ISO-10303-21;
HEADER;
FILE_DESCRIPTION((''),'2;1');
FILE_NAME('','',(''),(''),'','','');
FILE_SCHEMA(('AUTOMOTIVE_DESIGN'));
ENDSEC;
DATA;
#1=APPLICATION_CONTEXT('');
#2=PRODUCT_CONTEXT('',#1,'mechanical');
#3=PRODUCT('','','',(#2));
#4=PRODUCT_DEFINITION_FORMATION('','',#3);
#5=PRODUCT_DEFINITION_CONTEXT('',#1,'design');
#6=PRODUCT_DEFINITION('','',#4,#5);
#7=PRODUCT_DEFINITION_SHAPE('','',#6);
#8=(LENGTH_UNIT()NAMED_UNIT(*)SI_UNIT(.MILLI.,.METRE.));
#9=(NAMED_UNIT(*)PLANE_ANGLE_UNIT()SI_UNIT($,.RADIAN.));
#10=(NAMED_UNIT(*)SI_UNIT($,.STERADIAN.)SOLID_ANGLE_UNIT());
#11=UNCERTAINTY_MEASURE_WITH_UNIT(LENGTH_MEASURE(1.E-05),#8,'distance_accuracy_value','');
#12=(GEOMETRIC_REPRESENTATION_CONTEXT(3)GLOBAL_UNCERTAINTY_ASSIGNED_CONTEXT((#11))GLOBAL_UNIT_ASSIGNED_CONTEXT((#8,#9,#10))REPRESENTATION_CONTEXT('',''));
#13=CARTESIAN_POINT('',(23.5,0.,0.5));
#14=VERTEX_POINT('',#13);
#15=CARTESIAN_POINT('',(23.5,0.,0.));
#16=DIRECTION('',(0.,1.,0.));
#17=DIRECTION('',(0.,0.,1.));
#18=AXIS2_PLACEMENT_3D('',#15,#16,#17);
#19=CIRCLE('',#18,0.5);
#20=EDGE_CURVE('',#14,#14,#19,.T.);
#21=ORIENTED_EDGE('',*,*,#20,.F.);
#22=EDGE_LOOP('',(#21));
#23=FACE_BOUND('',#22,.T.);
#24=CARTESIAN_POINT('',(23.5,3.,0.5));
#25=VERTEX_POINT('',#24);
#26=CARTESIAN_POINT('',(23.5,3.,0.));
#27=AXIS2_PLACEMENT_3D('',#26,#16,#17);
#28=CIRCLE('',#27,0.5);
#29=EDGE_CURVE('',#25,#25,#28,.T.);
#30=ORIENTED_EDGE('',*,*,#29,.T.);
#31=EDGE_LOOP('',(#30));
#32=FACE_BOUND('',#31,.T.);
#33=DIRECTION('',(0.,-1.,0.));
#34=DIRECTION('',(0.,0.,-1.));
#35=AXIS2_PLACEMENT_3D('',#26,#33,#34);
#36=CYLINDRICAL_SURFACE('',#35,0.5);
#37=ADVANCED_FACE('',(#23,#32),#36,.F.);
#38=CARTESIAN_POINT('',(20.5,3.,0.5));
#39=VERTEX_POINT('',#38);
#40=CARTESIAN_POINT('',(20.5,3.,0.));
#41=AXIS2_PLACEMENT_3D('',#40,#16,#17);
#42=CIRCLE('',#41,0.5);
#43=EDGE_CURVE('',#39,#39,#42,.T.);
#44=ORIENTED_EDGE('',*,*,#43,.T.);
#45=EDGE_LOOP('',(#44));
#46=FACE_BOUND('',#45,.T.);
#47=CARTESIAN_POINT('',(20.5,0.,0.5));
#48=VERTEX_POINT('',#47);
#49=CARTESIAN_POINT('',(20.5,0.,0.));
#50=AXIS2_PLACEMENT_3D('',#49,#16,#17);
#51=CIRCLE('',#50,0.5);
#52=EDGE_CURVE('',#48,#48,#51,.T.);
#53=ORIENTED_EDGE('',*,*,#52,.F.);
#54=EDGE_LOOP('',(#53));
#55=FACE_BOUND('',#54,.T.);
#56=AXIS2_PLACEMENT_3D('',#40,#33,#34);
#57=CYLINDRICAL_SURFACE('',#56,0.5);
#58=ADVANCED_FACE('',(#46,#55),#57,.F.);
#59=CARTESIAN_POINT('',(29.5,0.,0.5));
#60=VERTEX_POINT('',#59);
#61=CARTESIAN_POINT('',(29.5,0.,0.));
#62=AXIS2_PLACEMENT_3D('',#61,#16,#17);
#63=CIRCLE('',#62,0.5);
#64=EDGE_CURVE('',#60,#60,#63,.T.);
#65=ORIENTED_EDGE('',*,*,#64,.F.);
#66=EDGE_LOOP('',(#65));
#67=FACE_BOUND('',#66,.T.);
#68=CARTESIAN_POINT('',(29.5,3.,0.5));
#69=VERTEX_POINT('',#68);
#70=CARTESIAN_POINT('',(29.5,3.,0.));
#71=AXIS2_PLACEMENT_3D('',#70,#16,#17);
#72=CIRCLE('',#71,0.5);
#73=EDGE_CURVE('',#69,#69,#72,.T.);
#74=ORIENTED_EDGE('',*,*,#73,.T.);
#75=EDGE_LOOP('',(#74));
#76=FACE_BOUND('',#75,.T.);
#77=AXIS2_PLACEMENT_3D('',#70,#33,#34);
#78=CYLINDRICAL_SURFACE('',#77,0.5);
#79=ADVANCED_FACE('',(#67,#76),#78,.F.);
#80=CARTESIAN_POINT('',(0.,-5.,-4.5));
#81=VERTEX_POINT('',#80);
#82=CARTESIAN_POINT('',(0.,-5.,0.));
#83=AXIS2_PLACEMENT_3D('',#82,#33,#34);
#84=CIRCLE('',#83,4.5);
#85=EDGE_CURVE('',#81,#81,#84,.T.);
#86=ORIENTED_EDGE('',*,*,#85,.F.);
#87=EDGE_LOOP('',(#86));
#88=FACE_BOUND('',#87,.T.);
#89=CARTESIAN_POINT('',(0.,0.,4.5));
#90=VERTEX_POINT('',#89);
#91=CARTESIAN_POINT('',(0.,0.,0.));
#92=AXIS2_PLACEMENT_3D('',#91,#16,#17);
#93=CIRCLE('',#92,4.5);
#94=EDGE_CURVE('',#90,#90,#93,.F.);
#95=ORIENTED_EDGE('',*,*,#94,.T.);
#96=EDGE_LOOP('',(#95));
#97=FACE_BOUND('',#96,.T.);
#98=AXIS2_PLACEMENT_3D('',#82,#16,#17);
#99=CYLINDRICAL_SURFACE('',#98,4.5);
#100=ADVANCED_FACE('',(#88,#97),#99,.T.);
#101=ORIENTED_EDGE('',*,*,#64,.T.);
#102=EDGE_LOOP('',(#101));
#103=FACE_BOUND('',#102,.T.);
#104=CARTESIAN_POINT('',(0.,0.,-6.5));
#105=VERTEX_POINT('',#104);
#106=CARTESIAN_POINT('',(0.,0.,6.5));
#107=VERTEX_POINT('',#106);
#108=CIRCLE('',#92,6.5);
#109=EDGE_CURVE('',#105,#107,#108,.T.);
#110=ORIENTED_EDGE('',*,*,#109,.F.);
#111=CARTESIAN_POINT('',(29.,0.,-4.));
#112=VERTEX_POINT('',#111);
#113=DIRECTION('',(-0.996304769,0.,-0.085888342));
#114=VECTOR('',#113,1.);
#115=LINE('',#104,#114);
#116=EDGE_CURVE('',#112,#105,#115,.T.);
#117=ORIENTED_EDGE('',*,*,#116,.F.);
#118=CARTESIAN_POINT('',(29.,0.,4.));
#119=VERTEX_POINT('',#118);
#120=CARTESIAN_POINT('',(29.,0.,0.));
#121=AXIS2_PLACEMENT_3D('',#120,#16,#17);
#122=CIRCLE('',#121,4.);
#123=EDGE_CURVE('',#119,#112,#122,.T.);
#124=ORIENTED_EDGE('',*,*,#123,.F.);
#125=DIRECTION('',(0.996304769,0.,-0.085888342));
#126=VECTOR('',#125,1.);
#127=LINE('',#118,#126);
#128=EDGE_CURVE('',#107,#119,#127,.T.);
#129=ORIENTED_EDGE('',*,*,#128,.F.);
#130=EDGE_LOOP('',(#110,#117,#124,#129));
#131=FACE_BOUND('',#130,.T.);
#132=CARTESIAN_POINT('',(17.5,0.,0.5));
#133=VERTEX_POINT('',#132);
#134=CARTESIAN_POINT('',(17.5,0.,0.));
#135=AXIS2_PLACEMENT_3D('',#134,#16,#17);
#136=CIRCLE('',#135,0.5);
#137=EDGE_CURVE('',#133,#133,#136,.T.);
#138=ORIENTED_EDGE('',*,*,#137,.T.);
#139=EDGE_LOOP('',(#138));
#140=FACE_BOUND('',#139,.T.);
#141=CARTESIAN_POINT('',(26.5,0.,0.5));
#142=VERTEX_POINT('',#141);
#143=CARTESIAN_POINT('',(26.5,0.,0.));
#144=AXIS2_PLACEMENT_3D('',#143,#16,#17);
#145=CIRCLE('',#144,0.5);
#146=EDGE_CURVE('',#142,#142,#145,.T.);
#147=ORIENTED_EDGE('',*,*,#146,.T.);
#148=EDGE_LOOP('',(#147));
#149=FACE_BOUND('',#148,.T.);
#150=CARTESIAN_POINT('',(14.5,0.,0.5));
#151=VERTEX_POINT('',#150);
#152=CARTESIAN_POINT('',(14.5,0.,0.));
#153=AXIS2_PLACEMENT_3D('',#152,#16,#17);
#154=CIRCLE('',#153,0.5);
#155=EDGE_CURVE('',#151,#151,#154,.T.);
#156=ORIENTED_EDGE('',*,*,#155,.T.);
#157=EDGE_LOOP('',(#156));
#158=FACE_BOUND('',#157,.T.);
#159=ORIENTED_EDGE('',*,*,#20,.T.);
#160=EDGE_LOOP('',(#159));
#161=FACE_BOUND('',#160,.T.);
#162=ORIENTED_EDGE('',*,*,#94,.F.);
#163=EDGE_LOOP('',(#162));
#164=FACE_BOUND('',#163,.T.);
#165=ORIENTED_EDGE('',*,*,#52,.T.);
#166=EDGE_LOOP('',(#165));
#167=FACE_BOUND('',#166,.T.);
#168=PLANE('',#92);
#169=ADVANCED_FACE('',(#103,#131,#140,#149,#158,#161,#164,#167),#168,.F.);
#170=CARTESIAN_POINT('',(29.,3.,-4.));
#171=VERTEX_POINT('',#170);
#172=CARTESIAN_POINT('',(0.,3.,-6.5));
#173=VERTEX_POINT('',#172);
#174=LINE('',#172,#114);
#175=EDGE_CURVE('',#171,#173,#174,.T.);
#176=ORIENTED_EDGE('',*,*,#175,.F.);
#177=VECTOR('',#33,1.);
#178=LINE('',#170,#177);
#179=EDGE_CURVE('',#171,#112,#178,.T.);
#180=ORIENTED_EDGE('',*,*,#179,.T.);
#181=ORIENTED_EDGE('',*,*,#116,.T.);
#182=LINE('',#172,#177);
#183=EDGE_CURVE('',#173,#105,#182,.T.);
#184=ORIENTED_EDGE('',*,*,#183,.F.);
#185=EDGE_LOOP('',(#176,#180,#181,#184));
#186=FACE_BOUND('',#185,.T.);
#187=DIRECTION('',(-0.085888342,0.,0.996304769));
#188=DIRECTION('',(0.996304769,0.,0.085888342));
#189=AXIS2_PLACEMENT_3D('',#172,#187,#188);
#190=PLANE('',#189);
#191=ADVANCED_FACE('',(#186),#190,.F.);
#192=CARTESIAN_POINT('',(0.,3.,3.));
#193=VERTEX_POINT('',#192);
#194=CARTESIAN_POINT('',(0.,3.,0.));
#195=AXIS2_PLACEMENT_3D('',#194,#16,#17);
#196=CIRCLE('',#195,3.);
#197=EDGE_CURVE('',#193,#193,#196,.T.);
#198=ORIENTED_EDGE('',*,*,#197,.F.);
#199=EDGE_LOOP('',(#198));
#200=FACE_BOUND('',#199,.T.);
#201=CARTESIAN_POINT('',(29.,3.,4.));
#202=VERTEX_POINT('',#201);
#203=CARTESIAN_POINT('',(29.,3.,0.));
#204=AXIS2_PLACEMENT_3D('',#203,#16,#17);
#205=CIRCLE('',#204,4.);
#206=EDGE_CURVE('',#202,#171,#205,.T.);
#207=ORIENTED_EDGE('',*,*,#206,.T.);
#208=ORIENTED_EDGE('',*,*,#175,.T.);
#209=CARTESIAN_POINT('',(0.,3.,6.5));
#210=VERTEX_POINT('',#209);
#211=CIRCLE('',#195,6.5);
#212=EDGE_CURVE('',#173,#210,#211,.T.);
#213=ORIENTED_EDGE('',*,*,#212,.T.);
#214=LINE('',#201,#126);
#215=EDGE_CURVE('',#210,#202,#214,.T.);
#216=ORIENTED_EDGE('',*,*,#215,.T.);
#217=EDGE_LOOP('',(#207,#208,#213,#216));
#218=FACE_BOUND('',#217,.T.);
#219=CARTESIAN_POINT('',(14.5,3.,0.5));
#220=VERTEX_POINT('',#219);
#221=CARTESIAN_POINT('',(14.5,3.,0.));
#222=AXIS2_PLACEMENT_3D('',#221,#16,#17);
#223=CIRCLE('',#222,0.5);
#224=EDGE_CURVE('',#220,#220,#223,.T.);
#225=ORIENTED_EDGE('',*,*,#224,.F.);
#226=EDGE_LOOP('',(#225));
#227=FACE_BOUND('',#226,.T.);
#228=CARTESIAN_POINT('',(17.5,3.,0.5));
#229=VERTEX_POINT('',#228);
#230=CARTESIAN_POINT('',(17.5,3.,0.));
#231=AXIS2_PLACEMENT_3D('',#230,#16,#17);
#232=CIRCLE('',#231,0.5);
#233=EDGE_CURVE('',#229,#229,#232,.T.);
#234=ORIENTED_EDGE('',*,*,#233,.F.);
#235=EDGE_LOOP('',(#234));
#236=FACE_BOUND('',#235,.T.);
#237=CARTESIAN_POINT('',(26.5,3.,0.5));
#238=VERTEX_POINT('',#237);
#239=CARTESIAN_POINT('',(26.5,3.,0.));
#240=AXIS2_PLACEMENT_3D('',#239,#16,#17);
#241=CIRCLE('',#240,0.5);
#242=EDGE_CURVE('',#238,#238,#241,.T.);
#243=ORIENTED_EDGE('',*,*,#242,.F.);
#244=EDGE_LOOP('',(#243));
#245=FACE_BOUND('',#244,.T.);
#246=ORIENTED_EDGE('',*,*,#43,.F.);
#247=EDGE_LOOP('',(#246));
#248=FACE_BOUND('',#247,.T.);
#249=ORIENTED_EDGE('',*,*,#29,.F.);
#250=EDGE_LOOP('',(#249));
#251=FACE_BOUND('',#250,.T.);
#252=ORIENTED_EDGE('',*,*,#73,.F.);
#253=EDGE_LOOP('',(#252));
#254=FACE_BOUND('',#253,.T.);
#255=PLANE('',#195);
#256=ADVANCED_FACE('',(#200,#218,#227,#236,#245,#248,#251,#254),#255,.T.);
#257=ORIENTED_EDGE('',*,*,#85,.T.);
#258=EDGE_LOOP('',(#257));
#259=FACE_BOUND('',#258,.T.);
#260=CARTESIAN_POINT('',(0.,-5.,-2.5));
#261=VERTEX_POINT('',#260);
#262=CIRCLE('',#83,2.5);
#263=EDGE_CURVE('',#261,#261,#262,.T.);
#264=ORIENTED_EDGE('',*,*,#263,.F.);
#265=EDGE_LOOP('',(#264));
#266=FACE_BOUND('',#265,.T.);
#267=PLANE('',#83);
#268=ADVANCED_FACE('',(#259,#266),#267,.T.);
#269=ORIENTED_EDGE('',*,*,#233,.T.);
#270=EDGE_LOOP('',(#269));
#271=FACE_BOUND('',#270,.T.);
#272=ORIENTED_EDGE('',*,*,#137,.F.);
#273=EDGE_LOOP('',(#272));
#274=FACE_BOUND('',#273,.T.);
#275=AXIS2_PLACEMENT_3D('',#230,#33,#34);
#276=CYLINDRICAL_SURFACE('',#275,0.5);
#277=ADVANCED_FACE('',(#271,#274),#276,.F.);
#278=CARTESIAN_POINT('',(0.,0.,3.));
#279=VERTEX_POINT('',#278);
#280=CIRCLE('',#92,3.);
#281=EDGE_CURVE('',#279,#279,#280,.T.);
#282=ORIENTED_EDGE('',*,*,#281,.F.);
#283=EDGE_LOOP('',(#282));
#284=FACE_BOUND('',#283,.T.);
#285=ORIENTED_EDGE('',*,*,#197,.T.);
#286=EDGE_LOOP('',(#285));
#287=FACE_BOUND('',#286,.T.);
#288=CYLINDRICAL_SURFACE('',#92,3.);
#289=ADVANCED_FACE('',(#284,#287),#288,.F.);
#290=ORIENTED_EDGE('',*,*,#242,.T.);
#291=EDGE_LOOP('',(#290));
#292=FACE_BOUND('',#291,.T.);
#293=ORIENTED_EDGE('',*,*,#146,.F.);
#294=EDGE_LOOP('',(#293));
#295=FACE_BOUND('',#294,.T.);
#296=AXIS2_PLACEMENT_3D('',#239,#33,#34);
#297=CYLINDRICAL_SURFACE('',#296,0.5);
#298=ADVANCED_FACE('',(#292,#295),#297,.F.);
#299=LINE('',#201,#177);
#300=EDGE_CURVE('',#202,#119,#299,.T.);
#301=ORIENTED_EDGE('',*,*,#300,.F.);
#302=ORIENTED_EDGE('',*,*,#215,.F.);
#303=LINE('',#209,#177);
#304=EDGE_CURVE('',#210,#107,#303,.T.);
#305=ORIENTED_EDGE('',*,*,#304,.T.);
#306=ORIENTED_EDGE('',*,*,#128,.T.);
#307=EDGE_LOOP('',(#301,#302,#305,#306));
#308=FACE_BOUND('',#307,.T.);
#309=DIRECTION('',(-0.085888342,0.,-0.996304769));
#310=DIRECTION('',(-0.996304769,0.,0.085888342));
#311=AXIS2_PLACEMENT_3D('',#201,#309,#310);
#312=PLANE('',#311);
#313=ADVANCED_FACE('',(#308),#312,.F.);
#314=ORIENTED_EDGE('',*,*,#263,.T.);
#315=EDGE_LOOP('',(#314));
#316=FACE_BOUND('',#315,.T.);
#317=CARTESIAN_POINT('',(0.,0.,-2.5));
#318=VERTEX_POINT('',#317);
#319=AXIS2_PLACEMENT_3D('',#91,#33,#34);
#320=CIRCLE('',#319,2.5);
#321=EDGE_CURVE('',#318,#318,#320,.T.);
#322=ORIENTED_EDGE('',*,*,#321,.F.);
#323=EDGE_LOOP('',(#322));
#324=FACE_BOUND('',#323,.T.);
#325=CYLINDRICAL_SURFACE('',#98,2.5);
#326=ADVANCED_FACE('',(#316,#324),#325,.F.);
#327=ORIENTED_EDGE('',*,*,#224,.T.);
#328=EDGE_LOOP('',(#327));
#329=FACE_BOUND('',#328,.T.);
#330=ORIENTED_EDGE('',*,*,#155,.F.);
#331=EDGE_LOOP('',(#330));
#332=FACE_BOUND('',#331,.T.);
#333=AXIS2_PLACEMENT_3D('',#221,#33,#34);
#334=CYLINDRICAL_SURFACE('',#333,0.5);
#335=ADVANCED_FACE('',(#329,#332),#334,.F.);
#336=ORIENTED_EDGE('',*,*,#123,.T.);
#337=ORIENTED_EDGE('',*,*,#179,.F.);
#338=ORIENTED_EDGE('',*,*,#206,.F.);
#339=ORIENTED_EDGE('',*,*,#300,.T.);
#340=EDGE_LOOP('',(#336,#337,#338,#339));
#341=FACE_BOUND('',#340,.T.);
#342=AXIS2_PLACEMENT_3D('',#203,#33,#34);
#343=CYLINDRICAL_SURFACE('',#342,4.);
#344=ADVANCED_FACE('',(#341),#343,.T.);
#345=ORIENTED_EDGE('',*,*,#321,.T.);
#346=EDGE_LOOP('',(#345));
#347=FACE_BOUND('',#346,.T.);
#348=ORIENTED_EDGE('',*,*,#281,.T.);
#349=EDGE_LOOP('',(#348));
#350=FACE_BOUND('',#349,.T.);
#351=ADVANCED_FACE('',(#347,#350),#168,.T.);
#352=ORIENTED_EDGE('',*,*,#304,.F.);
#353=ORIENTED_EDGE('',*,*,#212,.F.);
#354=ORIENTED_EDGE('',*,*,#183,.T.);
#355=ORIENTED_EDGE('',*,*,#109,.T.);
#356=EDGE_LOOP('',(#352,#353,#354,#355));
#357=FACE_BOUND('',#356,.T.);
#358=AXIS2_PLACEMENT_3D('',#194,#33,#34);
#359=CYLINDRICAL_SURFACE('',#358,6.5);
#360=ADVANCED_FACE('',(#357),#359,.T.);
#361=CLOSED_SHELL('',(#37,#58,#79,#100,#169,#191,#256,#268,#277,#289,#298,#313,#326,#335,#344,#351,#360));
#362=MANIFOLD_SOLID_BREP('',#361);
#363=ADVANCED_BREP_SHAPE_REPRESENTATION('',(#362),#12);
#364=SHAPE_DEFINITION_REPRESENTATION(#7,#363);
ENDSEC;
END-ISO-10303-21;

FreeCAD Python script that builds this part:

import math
import FreeCAD as App
import Part
import Sketcher
from FreeCAD import Vector
Q = App.Units.Quantity

doc = App.newDocument("Part")
body = doc.addObject("PartDesign::Body", "Body")

# Sketch on XZ plane
sketch1 = body.newObject("Sketcher::SketchObject", "Sketch")
sketch1.AttachmentSupport = (doc.getObject("XZ_Plane"), [""])
sketch1.MapMode = "FlatFace"
sketch1.addGeometry([
    Part.LineSegment(Vector(29, -4, 0), Vector(0, -6.5, 0)),  # 0
    Part.ArcOfCircle(Part.Circle(Vector(0, 0, 0), Vector(0, 0, 1), 6.5), math.radians(90), math.radians(270)),  # 1
    Part.LineSegment(Vector(0, 6.5, 0), Vector(29, 4, 0)),  # 2
    Part.ArcOfCircle(Part.Circle(Vector(29, 0, 0), Vector(0, 0, 1), 4), math.radians(-90), math.radians(90)),  # 3
    Part.Circle(Vector(29.5, 0, 0), Vector(0, 0, 1), 0.5),  # 4
    Part.Circle(Vector(26.5, 0, 0), Vector(0, 0, 1), 0.5),  # 5
    Part.Circle(Vector(23.5, 0, 0), Vector(0, 0, 1), 0.5),  # 6
    Part.Circle(Vector(20.5, 0, 0), Vector(0, 0, 1), 0.5),  # 7
    Part.Circle(Vector(17.5, 0, 0), Vector(0, 0, 1), 0.5),  # 8
    Part.Circle(Vector(14.5, 0, 0), Vector(0, 0, 1), 0.5),  # 9
], False)
sketch1.addConstraint([
    Sketcher.Constraint("Coincident", 0, 2, 1, 2),
    Sketcher.Constraint("Coincident", 1, 1, 2, 1),
    Sketcher.Constraint("Coincident", 2, 2, 3, 2),
    Sketcher.Constraint("Coincident", 3, 1, 0, 1),
    Sketcher.Constraint("Coincident", 1, 3, -1, 1),
    Sketcher.Constraint("Equal", 4, 5),
    Sketcher.Constraint("Equal", 5, 6),
    Sketcher.Constraint("Equal", 6, 7),
    Sketcher.Constraint("Equal", 7, 8),
    Sketcher.Constraint("Equal", 8, 9),
    Sketcher.Constraint("Symmetric", 2, 2, 3, 1, -1),
    Sketcher.Constraint("PointOnObject", 4, 3, -1),
    Sketcher.Constraint("PointOnObject", 5, 3, -1),
    Sketcher.Constraint("PointOnObject", 6, 3, -1),
    Sketcher.Constraint("PointOnObject", 7, 3, -1),
    Sketcher.Constraint("PointOnObject", 8, 3, -1),
    Sketcher.Constraint("PointOnObject", 9, 3, -1),
    Sketcher.Constraint("PointOnObject", 0, 2, -2),
    Sketcher.Constraint("PointOnObject", 1, 1, -2),
    Sketcher.Constraint("Vertical", 3, 3, 2, 2),
    Sketcher.Constraint("Diameter", 4, Q("1 mm")),
    Sketcher.Constraint("Radius", 3, Q("4 mm")),
    Sketcher.Constraint("Radius", 1, Q("6.5 mm")),
    Sketcher.Constraint("DistanceX", -1, 1, 3, 3, Q("29 mm")),
    Sketcher.Constraint("DistanceX", 5, 3, 4, 3, Q("3 mm")),
    Sketcher.Constraint("DistanceX", 6, 3, 5, 3, Q("3 mm")),
    Sketcher.Constraint("DistanceX", 7, 3, 6, 3, Q("3 mm")),
    Sketcher.Constraint("DistanceX", 8, 3, 7, 3, Q("3 mm")),
    Sketcher.Constraint("DistanceX", 9, 3, 8, 3, Q("3 mm")),
    Sketcher.Constraint("DistanceX", -1, 1, 4, 3, Q("29.5 mm")),
])
pad1 = body.newObject("PartDesign::Pad", "Pad")
pad1.Profile = sketch1
pad1.Length = 3
pad1.Reversed = True

# Sketch on XZ plane
sketch2 = body.newObject("Sketcher::SketchObject", "Sketch001")
sketch2.AttachmentSupport = (doc.getObject("XZ_Plane"), [""])
sketch2.MapMode = "FlatFace"
sketch2.addGeometry([
    Part.Circle(Vector(0, 0, 0), Vector(0, 0, 1), 4.5),
    Part.Circle(Vector(0, 0, 0), Vector(0, 0, 1), 2.5),
], False)
sketch2.addConstraint([
    Sketcher.Constraint("Coincident", 0, 3, -1, 1),
    Sketcher.Constraint("Coincident", 1, 3, -1, 1),
    Sketcher.Constraint("Diameter", 0, Q("9 mm")),
    Sketcher.Constraint("Diameter", 1, Q("5 mm")),
])
pad2 = body.newObject("PartDesign::Pad", "Pad001")
pad2.Profile = sketch2
pad2.Length = 5

# Sketch on XZ plane
sketch3 = body.newObject("Sketcher::SketchObject", "Sketch002")
sketch3.AttachmentSupport = (doc.getObject("XZ_Plane"), [""])
sketch3.MapMode = "FlatFace"
sketch3.AttachmentOffset = App.Placement(Vector(0, 0, -3), App.Rotation())
sketch3.addGeometry(Part.Circle(Vector(0, 0, 0), Vector(0, 0, 1), 3), False)
sketch3.addConstraint([
    Sketcher.Constraint("Coincident", 0, 3, -1, 1),
    Sketcher.Constraint("Diameter", 0, Q("6 mm")),
])
pocket1 = body.newObject("PartDesign::Pocket", "Pocket")
pocket1.Profile = sketch3
pocket1.Length = 3
pocket1.Reversed = True

doc.recompute()
